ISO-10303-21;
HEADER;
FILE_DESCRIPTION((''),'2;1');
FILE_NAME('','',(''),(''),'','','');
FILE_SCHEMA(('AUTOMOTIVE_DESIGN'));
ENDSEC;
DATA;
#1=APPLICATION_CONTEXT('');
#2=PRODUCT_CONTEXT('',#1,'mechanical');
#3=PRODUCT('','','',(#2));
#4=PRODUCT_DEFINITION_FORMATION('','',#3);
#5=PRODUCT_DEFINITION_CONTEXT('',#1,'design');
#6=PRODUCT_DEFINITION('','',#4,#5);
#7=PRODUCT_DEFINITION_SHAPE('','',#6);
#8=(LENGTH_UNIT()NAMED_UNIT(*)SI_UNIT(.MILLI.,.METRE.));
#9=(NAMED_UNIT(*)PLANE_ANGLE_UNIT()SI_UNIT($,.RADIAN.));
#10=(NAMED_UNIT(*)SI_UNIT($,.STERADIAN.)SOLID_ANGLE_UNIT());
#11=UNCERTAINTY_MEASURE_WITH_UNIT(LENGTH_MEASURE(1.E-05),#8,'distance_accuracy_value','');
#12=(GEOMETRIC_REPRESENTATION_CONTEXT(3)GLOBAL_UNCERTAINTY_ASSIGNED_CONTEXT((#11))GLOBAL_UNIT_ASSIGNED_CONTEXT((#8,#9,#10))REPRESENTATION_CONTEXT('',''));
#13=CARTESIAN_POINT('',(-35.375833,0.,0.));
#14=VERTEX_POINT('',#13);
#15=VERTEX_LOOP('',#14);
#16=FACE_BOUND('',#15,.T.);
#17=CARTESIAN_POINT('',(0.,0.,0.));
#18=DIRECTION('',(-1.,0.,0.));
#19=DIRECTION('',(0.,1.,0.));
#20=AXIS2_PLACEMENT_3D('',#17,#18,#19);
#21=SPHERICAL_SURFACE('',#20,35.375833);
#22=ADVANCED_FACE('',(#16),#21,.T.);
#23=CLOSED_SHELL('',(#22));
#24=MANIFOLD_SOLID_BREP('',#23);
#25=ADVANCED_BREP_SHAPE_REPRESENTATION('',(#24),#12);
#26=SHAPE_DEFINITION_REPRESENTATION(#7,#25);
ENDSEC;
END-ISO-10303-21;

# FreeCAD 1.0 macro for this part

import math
import FreeCAD as App
import Part
import Sketcher

doc = App.newDocument("Part")
body = doc.addObject("PartDesign::Body", "Body")

sketch1 = body.newObject("Sketcher::SketchObject", "Sketch")
sketch1.AttachmentSupport = (doc.getObject("XY_Plane"), [""])
sketch1.MapMode = "FlatFace"
sketch1.addGeometry([
    Part.ArcOfCircle(Part.Circle(App.Vector(0, 0, 0), App.Vector(0, 0, 1), 35), math.radians(0), math.radians(180)),
    Part.LineSegment(App.Vector(-35, 0, 0), App.Vector(35, 0, 0)),
], False)
sketch1.addConstraint([
    Sketcher.Constraint("Coincident", 0, 1, 1, 2),
    Sketcher.Constraint("Coincident", 1, 1, 0, 2),
    Sketcher.Constraint("Horizontal", 1),
    Sketcher.Constraint("Coincident", 0, 3, -1, 1),
    Sketcher.Constraint("PointOnObject", 0, 1, -1),
    Sketcher.Constraint("Radius", 0, 35.375833),
])
revolution = body.newObject("PartDesign::Revolution", "Revolution")
revolution.Profile = sketch1
revolution.ReferenceAxis = (sketch1, ["H_Axis"])
revolution.Angle = 360

doc.recompute()
